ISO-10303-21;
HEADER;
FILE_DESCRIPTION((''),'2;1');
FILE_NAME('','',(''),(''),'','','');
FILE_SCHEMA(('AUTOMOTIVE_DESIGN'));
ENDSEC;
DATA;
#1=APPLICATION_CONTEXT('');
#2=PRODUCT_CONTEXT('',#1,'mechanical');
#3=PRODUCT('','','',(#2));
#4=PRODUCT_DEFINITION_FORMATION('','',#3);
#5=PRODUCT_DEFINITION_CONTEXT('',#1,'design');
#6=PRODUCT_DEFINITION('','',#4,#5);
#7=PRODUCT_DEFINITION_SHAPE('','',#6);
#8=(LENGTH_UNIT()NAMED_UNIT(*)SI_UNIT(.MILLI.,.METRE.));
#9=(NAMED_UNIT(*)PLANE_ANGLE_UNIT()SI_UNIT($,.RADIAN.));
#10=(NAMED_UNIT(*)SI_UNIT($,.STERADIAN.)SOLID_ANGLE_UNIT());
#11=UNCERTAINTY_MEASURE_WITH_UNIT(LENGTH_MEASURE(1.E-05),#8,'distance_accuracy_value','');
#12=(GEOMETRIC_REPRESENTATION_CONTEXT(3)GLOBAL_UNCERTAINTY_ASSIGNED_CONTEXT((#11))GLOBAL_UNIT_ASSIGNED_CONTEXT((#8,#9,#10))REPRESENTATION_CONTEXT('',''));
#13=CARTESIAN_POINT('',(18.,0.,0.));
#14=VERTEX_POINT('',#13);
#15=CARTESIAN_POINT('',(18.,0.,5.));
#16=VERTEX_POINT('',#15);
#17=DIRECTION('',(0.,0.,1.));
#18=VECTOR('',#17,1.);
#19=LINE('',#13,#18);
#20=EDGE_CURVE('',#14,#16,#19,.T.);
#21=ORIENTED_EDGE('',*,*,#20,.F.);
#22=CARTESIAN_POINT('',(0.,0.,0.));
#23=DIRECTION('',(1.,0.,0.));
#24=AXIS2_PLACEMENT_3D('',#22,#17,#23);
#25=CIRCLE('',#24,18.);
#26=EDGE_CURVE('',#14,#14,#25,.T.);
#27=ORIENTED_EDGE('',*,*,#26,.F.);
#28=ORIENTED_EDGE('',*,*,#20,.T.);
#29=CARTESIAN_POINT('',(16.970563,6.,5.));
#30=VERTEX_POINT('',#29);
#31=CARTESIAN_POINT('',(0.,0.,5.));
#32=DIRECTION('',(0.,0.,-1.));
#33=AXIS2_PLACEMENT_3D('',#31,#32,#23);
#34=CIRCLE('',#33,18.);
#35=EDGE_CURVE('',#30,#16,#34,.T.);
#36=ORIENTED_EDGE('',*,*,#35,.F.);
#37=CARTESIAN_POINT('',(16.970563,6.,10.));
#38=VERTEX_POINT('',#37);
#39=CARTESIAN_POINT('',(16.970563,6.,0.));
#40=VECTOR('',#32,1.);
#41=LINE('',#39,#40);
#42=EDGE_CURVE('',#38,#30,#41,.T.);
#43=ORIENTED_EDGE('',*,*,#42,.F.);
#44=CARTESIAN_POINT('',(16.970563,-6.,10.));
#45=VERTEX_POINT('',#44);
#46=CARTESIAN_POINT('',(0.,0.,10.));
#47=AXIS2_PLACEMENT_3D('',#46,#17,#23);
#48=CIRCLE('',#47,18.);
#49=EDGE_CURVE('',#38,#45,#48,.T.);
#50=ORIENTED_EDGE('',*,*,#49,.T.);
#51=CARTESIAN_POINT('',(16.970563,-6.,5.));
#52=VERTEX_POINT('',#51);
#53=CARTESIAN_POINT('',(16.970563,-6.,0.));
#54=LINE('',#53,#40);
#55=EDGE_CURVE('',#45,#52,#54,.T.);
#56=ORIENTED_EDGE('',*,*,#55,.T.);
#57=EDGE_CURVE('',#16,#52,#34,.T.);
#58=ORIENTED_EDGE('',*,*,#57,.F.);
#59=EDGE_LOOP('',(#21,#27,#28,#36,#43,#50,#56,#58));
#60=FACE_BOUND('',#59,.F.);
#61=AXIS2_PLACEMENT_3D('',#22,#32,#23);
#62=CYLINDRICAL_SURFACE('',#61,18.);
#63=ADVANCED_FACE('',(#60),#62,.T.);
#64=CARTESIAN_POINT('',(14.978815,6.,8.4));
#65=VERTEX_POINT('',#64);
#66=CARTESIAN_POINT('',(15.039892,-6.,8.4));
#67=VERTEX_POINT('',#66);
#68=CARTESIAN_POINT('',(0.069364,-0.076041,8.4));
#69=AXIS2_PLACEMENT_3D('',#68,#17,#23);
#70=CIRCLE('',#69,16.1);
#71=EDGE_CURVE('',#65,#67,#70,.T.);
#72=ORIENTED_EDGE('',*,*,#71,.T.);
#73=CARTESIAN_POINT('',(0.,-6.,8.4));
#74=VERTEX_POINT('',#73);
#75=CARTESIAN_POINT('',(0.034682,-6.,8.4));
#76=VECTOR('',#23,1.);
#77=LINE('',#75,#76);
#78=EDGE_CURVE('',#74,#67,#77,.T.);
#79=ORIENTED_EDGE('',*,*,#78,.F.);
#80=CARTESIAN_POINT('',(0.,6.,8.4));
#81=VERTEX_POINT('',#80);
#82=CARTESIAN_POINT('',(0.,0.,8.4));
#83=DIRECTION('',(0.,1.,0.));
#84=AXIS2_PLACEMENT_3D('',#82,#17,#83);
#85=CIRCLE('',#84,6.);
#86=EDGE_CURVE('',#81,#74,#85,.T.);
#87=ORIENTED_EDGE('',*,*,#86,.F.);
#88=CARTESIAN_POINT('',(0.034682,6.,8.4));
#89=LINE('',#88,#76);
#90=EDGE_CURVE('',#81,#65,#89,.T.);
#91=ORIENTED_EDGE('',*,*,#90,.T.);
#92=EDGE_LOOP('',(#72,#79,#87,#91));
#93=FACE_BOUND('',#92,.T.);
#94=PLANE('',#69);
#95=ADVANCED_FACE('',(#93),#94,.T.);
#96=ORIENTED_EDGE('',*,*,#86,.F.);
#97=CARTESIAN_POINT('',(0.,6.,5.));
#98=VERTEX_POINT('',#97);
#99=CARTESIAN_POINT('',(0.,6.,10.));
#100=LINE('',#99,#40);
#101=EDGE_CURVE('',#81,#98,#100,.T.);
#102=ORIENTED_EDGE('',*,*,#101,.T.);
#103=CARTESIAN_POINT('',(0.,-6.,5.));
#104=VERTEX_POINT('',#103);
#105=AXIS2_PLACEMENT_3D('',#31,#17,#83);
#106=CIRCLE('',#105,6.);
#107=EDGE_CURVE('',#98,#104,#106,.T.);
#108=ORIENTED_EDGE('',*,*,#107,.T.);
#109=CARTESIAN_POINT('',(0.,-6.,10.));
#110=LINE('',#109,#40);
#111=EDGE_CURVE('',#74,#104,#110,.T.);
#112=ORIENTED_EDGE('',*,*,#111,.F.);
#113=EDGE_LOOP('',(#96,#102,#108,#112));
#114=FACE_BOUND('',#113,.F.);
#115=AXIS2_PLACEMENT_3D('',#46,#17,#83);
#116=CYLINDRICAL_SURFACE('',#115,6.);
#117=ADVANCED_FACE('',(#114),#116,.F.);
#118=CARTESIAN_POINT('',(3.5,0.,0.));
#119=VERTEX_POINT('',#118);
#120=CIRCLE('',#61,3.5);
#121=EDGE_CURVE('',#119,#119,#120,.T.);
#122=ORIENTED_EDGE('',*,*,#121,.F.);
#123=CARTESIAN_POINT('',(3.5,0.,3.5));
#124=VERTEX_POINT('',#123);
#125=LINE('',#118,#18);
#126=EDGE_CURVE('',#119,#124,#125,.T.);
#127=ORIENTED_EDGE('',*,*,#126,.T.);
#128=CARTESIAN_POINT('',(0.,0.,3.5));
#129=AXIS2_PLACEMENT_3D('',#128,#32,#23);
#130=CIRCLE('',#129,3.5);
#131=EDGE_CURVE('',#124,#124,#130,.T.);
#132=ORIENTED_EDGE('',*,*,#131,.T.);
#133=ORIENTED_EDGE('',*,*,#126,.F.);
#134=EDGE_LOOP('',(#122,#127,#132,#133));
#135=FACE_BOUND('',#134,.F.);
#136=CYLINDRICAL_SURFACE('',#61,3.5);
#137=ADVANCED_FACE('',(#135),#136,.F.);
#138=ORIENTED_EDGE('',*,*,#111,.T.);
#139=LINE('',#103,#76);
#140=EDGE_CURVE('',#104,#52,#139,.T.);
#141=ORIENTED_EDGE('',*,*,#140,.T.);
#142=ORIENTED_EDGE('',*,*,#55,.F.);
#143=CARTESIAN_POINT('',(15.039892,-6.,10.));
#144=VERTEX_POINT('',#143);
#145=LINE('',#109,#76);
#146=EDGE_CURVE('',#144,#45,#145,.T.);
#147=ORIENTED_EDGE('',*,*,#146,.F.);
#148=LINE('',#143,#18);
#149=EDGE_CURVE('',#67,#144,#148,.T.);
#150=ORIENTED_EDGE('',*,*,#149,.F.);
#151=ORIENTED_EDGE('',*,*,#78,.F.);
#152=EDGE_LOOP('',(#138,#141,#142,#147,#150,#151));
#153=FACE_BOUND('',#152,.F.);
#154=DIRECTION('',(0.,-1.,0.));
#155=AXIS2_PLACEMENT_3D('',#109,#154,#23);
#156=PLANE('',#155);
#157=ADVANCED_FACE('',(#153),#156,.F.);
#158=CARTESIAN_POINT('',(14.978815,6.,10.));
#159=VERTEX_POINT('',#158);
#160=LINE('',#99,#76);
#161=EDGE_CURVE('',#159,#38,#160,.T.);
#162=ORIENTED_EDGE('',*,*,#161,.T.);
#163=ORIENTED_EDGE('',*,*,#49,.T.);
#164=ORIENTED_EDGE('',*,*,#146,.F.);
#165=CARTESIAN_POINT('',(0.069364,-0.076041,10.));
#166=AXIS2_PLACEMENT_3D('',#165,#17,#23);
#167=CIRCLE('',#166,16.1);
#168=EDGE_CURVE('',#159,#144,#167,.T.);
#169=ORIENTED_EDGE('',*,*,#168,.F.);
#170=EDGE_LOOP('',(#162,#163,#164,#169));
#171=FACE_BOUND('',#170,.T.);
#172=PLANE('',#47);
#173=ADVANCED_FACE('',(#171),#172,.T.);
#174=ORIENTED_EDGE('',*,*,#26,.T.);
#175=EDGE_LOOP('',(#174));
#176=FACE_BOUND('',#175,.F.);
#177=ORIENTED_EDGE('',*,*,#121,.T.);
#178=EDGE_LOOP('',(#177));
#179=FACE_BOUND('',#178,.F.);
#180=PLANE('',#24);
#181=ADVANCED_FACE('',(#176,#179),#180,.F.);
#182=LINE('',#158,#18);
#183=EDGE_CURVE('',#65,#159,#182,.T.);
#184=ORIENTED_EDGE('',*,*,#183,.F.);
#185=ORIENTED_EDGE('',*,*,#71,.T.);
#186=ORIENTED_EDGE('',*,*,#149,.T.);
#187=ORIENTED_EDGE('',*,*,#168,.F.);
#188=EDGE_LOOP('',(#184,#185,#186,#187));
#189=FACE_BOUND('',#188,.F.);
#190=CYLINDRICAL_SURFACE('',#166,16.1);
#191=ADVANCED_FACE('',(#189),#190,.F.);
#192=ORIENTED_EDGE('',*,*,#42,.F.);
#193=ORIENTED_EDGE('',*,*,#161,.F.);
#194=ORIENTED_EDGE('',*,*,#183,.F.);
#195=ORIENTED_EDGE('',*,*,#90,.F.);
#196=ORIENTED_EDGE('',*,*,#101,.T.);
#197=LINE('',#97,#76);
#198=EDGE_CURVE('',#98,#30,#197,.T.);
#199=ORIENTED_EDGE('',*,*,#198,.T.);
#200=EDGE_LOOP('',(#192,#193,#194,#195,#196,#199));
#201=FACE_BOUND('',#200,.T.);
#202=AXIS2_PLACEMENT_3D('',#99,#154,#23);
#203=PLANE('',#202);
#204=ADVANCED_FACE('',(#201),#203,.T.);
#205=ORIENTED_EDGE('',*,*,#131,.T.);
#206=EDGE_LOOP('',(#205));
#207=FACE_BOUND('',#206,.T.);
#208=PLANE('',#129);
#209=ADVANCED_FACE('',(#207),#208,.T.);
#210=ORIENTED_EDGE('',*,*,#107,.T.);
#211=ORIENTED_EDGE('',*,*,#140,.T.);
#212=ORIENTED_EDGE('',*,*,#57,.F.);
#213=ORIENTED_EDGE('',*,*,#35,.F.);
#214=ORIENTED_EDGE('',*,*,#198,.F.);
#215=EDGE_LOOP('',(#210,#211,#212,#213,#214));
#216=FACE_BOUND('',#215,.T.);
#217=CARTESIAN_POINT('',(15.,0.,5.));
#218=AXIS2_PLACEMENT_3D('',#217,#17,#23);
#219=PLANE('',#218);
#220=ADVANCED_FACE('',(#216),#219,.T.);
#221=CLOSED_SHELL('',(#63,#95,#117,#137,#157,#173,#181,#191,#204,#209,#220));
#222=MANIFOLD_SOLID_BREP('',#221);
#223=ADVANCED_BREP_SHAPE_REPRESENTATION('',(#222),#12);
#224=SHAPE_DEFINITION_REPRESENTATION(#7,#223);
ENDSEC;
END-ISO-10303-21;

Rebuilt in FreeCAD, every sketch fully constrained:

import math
import FreeCAD as App
import Part
import Sketcher

V = App.Vector

doc = App.newDocument("Part")
params = doc.addObject("Spreadsheet::Sheet", "Params")
for row, (alias, value) in enumerate([
    ("sketch1_diameter", "36 mm"),
    ("pad1_length", "10 mm"),
    ("sketch2_diameter", "32.2 mm"),
    ("pocket1_length", "1.6 mm"),
    ("sketch3_radius", "6 mm"),
    ("sketch3_width", "30 mm"),
    ("pocket2_length", "5 mm"),
    ("sketch4_diameter", "7 mm"),
    ("pocket3_length", "3.5 mm"),
], start=1):
    params.set(f"A{row}", alias)
    params.set(f"B{row}", "=" + value)
    params.setAlias(f"B{row}", alias)

body = doc.addObject("PartDesign::Body", "Body")

sketch1 = body.newObject("Sketcher::SketchObject", "Sketch")
sketch1.AttachmentSupport = (doc.getObject("XY_Plane"), [""])
sketch1.MapMode = "FlatFace"
sketch1.addGeometry(Part.Circle(V(0, 0, 0), V(0, 0, 1), 18), False)
sketch1.addConstraint([
    Sketcher.Constraint("Coincident", 0, 3, -1, 1),
    Sketcher.Constraint("Diameter", 0, 36.0),
])
sketch1.setExpression("Constraints[1]", "Params.sketch1_diameter")
pad1 = body.newObject("PartDesign::Pad", "Pad")
pad1.Profile = sketch1
pad1.setExpression("Length", "Params.pad1_length")

sketch2 = body.newObject("Sketcher::SketchObject", "Sketch001")
sketch2.AttachmentSupport = (doc.getObject("XY_Plane"), [""])
sketch2.MapMode = "FlatFace"
sketch2.AttachmentOffset = App.Placement(V(0, 0, 10), App.Rotation())
sketch2.addGeometry(Part.Circle(V(0, 0, 0), V(0, 0, 1), 16), False)
sketch2.addConstraint([
    Sketcher.Constraint("Diameter", 0, 32.2),
    Sketcher.Constraint("DistanceY", 0, 3, -1, 1, 0.076041),
    Sketcher.Constraint("DistanceX", -1, 1, 0, 3, 0.069364),
])
sketch2.setExpression("Constraints[0]", "Params.sketch2_diameter")
pocket1 = body.newObject("PartDesign::Pocket", "Pocket")
pocket1.Profile = sketch2
pocket1.setExpression("Length", "Params.pocket1_length")

sketch3 = body.newObject("Sketcher::SketchObject", "Sketch002")
sketch3.AttachmentSupport = (doc.getObject("XY_Plane"), [""])
sketch3.MapMode = "FlatFace"
sketch3.AttachmentOffset = App.Placement(V(0, 0, 10), App.Rotation())
sketch3.addGeometry([
    Part.ArcOfCircle(Part.Circle(V(0, 0, 0), V(0, 0, 1), 6), math.radians(90), math.radians(270)),
    Part.LineSegment(V(0, -6, 0), V(30, -6, 0)),
    Part.ArcOfCircle(Part.Circle(V(30, 0, 0), V(0, 0, 1), 6), math.radians(-90), math.radians(90)),
    Part.LineSegment(V(30, 6, 0), V(0, 6, 0)),
], False)
sketch3.addConstraint([
    Sketcher.Constraint("Tangent", 0, 2, 1, 1),
    Sketcher.Constraint("Tangent", 1, 2, 2, 1),
    Sketcher.Constraint("Tangent", 2, 2, 3, 1),
    Sketcher.Constraint("Tangent", 3, 2, 0, 1),
    Sketcher.Constraint("Horizontal", 1),
    Sketcher.Constraint("Horizontal", 3),
    Sketcher.Constraint("Coincident", 0, 3, -1, 1),
    Sketcher.Constraint("Radius", 0, 6.0),
    Sketcher.Constraint("DistanceX", 1, 1, 1, 2, 30.0),
])
sketch3.setExpression("Constraints[7]", "Params.sketch3_radius")
sketch3.setExpression("Constraints[8]", "Params.sketch3_width")
pocket2 = body.newObject("PartDesign::Pocket", "Pocket001")
pocket2.Profile = sketch3
pocket2.setExpression("Length", "Params.pocket2_length")

sketch4 = body.newObject("Sketcher::SketchObject", "Sketch003")
sketch4.AttachmentSupport = (doc.getObject("XY_Plane"), [""])
sketch4.MapMode = "FlatFace"
sketch4.addGeometry(Part.Circle(V(0, 0, 0), V(0, 0, 1), 3.5), False)
sketch4.addConstraint([
    Sketcher.Constraint("Coincident", 0, 3, -1, 1),
    Sketcher.Constraint("Diameter", 0, 7.0),
])
sketch4.setExpression("Constraints[1]", "Params.sketch4_diameter")
pocket3 = body.newObject("PartDesign::Pocket", "Pocket002")
pocket3.Profile = sketch4
pocket3.setExpression("Length", "Params.pocket3_length")
pocket3.Reversed = True

doc.recompute()
